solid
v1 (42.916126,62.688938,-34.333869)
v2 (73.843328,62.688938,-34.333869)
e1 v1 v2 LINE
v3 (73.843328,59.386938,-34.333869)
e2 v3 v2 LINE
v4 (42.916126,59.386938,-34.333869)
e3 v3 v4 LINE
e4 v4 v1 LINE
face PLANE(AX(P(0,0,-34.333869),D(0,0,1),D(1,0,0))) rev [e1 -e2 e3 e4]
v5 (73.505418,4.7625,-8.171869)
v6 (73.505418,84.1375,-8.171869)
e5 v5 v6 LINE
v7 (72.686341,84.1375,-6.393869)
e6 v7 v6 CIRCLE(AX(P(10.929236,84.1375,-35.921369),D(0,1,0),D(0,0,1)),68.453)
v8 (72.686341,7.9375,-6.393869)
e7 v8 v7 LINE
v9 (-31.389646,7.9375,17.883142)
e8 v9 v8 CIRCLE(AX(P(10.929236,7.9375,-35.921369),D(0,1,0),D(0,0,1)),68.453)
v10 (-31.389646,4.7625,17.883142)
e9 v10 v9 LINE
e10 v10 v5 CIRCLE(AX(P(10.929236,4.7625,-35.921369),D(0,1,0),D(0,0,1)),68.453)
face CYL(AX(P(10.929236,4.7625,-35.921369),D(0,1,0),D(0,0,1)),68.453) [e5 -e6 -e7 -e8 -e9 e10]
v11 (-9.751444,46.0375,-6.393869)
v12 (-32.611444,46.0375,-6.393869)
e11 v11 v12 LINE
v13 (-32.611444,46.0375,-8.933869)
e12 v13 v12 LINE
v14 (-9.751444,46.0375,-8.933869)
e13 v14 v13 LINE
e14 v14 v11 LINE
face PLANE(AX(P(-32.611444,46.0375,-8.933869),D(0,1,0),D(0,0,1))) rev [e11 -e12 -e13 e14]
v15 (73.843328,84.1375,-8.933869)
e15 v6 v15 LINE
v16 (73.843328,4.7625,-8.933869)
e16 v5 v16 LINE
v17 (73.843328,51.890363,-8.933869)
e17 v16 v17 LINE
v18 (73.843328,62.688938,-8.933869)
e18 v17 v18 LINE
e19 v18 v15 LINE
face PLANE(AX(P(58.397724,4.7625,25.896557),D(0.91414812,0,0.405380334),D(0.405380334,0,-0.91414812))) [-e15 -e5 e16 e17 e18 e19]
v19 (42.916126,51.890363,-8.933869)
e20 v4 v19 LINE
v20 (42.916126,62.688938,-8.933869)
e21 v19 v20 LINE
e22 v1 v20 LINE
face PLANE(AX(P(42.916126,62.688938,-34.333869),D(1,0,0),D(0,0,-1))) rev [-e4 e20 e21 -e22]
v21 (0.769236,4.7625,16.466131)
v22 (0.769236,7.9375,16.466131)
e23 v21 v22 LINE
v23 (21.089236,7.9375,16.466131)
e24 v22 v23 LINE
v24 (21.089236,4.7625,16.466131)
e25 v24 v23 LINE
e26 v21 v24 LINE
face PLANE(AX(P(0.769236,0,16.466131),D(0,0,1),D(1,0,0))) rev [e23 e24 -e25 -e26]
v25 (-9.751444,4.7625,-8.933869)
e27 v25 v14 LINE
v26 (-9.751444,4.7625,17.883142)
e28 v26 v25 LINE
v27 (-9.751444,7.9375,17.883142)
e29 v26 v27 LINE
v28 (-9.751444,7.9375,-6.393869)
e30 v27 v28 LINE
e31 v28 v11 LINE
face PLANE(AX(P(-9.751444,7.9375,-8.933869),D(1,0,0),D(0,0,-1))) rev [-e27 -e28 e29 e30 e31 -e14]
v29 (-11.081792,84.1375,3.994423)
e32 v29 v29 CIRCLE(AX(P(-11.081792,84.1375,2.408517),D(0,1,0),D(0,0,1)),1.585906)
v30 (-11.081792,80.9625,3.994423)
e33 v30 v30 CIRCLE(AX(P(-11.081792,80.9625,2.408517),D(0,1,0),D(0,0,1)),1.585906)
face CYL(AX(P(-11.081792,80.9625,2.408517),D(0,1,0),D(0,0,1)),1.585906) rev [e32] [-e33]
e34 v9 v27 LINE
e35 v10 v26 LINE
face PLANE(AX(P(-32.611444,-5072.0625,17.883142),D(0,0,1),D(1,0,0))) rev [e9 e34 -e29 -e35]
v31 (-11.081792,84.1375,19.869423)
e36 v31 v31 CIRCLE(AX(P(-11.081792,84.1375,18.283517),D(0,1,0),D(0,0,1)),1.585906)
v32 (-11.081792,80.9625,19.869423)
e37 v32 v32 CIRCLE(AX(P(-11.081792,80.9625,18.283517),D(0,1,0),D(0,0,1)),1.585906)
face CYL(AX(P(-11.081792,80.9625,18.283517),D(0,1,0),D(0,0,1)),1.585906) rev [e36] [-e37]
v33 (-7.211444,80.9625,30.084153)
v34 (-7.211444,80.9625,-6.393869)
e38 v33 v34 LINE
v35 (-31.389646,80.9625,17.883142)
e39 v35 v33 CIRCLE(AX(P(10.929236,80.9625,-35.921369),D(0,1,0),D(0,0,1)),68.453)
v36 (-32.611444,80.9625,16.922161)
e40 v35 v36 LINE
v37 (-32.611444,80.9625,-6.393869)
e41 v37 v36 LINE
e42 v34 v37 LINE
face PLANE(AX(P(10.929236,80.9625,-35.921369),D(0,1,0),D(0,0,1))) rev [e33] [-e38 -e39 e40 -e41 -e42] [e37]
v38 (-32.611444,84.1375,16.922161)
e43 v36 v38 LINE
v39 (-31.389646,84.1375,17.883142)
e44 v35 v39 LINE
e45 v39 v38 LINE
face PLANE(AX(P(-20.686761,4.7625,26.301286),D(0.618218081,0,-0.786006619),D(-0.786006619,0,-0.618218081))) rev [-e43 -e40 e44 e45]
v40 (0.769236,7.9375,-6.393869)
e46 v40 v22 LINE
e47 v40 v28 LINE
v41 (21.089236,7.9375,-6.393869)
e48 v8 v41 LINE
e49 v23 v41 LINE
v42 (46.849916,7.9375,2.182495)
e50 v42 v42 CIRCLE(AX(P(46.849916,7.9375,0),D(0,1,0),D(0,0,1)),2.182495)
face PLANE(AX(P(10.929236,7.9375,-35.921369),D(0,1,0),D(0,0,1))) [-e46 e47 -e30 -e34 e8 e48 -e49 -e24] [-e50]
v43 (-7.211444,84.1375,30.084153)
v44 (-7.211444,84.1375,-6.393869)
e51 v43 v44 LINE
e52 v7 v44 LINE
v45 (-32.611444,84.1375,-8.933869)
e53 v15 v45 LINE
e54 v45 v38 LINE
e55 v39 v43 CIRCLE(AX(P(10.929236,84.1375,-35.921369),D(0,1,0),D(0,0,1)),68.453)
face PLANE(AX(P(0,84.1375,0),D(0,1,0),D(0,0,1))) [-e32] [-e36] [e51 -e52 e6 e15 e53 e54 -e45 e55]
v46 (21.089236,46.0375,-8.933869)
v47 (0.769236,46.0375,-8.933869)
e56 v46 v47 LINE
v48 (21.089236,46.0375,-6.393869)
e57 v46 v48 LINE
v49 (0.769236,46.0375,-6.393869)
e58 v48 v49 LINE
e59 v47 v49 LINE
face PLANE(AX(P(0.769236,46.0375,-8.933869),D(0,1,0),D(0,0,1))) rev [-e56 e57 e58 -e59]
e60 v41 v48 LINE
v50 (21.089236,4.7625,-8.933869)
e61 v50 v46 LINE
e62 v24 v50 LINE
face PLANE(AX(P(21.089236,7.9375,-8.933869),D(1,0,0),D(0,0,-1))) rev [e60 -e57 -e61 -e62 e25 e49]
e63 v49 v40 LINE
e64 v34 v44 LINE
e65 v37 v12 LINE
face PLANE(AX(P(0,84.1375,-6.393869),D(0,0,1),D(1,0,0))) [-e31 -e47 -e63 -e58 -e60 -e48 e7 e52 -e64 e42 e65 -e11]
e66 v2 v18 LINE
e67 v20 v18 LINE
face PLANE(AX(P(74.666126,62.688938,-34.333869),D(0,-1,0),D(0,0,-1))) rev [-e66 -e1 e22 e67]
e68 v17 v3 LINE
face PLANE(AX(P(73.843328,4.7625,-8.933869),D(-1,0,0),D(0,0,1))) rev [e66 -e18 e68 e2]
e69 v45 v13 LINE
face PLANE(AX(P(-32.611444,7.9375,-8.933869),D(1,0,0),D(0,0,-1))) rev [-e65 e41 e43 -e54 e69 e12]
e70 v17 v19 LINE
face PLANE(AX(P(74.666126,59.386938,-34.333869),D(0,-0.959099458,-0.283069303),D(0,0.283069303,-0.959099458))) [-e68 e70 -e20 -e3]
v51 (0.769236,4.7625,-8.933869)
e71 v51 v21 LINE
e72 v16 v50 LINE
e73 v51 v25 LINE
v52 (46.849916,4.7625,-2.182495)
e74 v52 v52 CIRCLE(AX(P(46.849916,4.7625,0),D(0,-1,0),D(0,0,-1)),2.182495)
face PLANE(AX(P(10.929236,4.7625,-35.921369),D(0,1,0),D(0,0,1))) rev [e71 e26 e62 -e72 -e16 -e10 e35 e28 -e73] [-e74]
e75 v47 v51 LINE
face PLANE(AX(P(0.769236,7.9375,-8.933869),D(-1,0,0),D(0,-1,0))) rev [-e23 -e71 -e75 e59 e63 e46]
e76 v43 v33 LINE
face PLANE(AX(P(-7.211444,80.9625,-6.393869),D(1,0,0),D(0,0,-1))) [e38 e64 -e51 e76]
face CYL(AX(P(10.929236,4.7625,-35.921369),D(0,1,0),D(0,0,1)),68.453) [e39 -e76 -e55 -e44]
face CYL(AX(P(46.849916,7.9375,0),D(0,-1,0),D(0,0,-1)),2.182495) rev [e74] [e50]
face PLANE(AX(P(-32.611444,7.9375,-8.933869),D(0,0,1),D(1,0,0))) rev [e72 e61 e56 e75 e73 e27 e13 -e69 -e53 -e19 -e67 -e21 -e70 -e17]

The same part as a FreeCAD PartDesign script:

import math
import FreeCAD as App
import Part
import Sketcher
Q = App.Units.Quantity


def add_polygon(sketch, points):
    """Adds a closed chain of lines whose ends are joined by coincident constraints."""
    first, n = sketch.GeometryCount, len(points)
    for a, b in zip(points, points[1:] + points[:1]):
        sketch.addGeometry(Part.LineSegment(App.Vector(*a, 0), App.Vector(*b, 0)), False)
    for i in range(n):
        sketch.addConstraint(Sketcher.Constraint("Coincident", first + i, 2, first + (i + 1) % n, 1))

doc = App.newDocument("Part")
body = doc.addObject("PartDesign::Body", "Body")

# Sketch on XZ plane
sketch1 = body.newObject("Sketcher::SketchObject", "Sketch")
sketch1.AttachmentSupport = (doc.getObject("XZ_Plane"), [""])
sketch1.MapMode = "FlatFace"
sketch1.addGeometry([
    Part.Circle(App.Vector(-25, 0, 0), App.Vector(0, 0, 1), 5.4),
    Part.Circle(App.Vector(-25, 0, 0), App.Vector(0, 0, 1), 2.2),
], False)
sketch1.addConstraint([
    Sketcher.Constraint("Coincident", 1, 3, 0, 3),
    Sketcher.Constraint("PointOnObject", 0, 3, -1),
    Sketcher.Constraint("Diameter", 0, 10.71499),
    Sketcher.Constraint("Diameter", 1, 4.36499),
    Sketcher.Constraint("DistanceX", 0, 3, -1, 1, 24.991444),
])
pad1 = body.newObject("PartDesign::Pad", "Pad")
pad1.Profile = sketch1
pad1.Length = Q("0.1875 in")
pad1.Reversed = True
body2 = doc.addObject("PartDesign::Body", "Body001")

# Sketch on XZ plane
sketch2 = body2.newObject("Sketcher::SketchObject", "Sketch001")
sketch2.AttachmentSupport = (doc.getObject("XZ_Plane001"), [""])
sketch2.MapMode = "FlatFace"
sketch2.addGeometry([
    Part.Circle(App.Vector(46.8, 0, 0), App.Vector(0, 0, 1), 5.4),
    Part.Circle(App.Vector(46.8, 0, 0), App.Vector(0, 0, 1), 2.2),
], False)
sketch2.addConstraint([
    Sketcher.Constraint("Coincident", 1, 3, 0, 3),
    Sketcher.Constraint("PointOnObject", 0, 3, -1),
    Sketcher.Constraint("Diameter", 0, 10.71499),
    Sketcher.Constraint("Diameter", 1, 4.36499),
    Sketcher.Constraint("DistanceX", -1, 1, 0, 3, 46.849916),
])
pad2 = body2.newObject("PartDesign::Pad", "Pad001")
pad2.Profile = sketch2
pad2.Length = Q("0.1875 in")
pad2.Reversed = True
body.AllowCompound = True
doc.recompute()

boolean = body.newObject("PartDesign::Boolean", "Boolean")
boolean.Type = "Fuse"
boolean.addObjects([body2])

# Sketch on XZ plane
sketch3 = body.newObject("Sketcher::SketchObject", "Sketch002")
sketch3.AttachmentSupport = (doc.getObject("XZ_Plane"), [""])
sketch3.MapMode = "FlatFace"
sketch3.AttachmentOffset = App.Placement(App.Vector(0, 0, -0.1875 * 25.4), App.Rotation())
sketch3.addGeometry([
    Part.LineSegment(App.Vector(-32.6, -8.9, 0), App.Vector(-32.6, 17.9, 0)),  # 0
    Part.ArcOfCircle(Part.Circle(App.Vector(10.9, -35.9, 0), App.Vector(0, 0, 1), 69.2), math.radians(23), math.radians(129)),  # 1
    Part.LineSegment(App.Vector(74.7, -8.9, 0), App.Vector(-32.6, -8.9, 0)),  # 2
    Part.Circle(App.Vector(-25, 0, 0), App.Vector(0, 0, 1), 2.2),  # 3
    Part.Circle(App.Vector(46.8, 0, 0), App.Vector(0, 0, 1), 2.2),  # 4
], False)
sketch3.addConstraint([
    Sketcher.Constraint("Coincident", 0, 2, 1, 2),
    Sketcher.Constraint("Coincident", 1, 1, 2, 1),
    Sketcher.Constraint("Coincident", 2, 2, 0, 1),
    Sketcher.Constraint("Vertical", 0),
    Sketcher.Constraint("Horizontal", 2),
    Sketcher.Constraint("Equal", 3, 4),
    Sketcher.Constraint("PointOnObject", 3, 3, -1),
    Sketcher.Constraint("PointOnObject", 4, 3, -1),
    Sketcher.Constraint("Radius", 1, Q("2.725 in")),
    Sketcher.Constraint("DistanceX", 0, 2, 3, 3, Q("0.3 in")),
    Sketcher.Constraint("Diameter", 3, 4.36499),
    Sketcher.Constraint("DistanceY", 1, 3, 1, 1, Q("1.0625 in")),
    Sketcher.Constraint("DistanceX", 3, 3, 1, 3, Q("1.4142 in")),
    Sketcher.Constraint("DistanceX", 1, 3, 4, 3, Q("1.4142 in")),
    Sketcher.Constraint("DistanceY", 1, 3, -1, 1, 35.921369),
    Sketcher.Constraint("DistanceX", -1, 1, 1, 3, 10.929236),
])
pad3 = body.newObject("PartDesign::Pad", "Pad002")
pad3.Profile = sketch3
pad3.Length = Q("0.125 in")
pad3.Reversed = True

# Sketch on XZ plane
sketch4 = body.newObject("Sketcher::SketchObject", "Sketch003")
sketch4.AttachmentSupport = (doc.getObject("XZ_Plane"), [""])
sketch4.MapMode = "FlatFace"
sketch4.AttachmentOffset = App.Placement(App.Vector(0, 0, -0.3125 * 25.4), App.Rotation())
sketch4.addGeometry([
    Part.LineSegment(App.Vector(74.7, -8.9, 0), App.Vector(-32.6, -8.9, 0)),
    Part.LineSegment(App.Vector(-32.6, -8.9, 0), App.Vector(-32.6, -6.4, 0)),
    Part.LineSegment(App.Vector(-32.6, -6.4, 0), App.Vector(73.5, -6.4, 0)),
    Part.ArcOfCircle(Part.Circle(App.Vector(10.9, -35.9, 0), App.Vector(0, 0, 1), 69.2), math.radians(22.95), math.radians(25.25)),
], False)
sketch4.addConstraint([
    Sketcher.Constraint("Coincident", 0, 2, 1, 1),
    Sketcher.Constraint("Coincident", 1, 2, 2, 1),
    Sketcher.Constraint("Coincident", 2, 2, 3, 2),
    Sketcher.Constraint("Coincident", 3, 1, 0, 1),
    Sketcher.Constraint("Horizontal", 0),
    Sketcher.Constraint("Vertical", 1),
    Sketcher.Constraint("Horizontal", 2),
    Sketcher.Constraint("DistanceY", 1, 1, 1, 2, Q("0.1 in")),
    Sketcher.Constraint("Radius", 3, Q("2.725 in")),
    Sketcher.Constraint("DistanceY", 3, 3, 0, 2, Q("1.0625 in")),
    Sketcher.Constraint("DistanceX", 0, 2, 3, 3, Q("1.7142 in")),
    Sketcher.Constraint("DistanceX", -1, 1, 2, 2, 73.529899),
    Sketcher.Constraint("DistanceY", 3, 3, -1, 1, 35.921369),
])
pad4 = body.newObject("PartDesign::Pad", "Pad003")
pad4.Profile = sketch4
pad4.Length = Q("3 in")
pad4.Reversed = True

# Sketch on XY plane
sketch5 = body.newObject("Sketcher::SketchObject", "Sketch004")
sketch5.AttachmentSupport = (doc.getObject("XY_Plane"), [""])
sketch5.MapMode = "FlatFace"
sketch5.AttachmentOffset = App.Placement(App.Vector(0, 0, -8.933869), App.Rotation())
add_polygon(sketch5, [(74.7, 62.7), (74.7, 59.4), (42.9, 59.4), (42.9, 62.7)])  # lines 0-3
sketch5.addConstraint([
    Sketcher.Constraint("Vertical", 0),
    Sketcher.Constraint("Horizontal", 1),
    Sketcher.Constraint("Vertical", 2),
    Sketcher.Constraint("Horizontal", 3),
    Sketcher.Constraint("DistanceX", 1, 2, 1, 1, Q("1.25 in")),
    Sketcher.Constraint("DistanceY", 0, 2, 0, 1, Q("0.13 in")),
    Sketcher.Constraint("DistanceX", -1, 1, 0, 2, 74.666126),
    Sketcher.Constraint("DistanceY", -1, 1, 0, 2, 59.386938),
])
pad5 = body.newObject("PartDesign::Pad", "Pad004")
pad5.Profile = sketch5
pad5.Length = Q("1 in")
pad5.Reversed = True

# Sketch on YZ plane
sketch6 = body.newObject("Sketcher::SketchObject", "Sketch005")
sketch6.AttachmentSupport = (doc.getObject("YZ_Plane"), [""])
sketch6.MapMode = "FlatFace"
sketch6.AttachmentOffset = App.Placement(App.Vector(0, 0, 42.916126), App.Rotation())
add_polygon(sketch6, [(59, -34), (52, -9), (59, -9)])  # lines 0-2
sketch6.addConstraint([
    Sketcher.Constraint("Horizontal", 1),
    Sketcher.Constraint("Vertical", 2),
    Sketcher.Constraint("DistanceY", 2, 2, 2, 1, Q("1 in")),
    Sketcher.Constraint("DistanceX", 1, 1, 1, 2, 7.496574),
    Sketcher.Constraint("DistanceY", 0, 2, -1, 1, 8.933869),
    Sketcher.Constraint("DistanceX", -1, 1, 0, 2, 51.890363),
])
pad6 = body.newObject("PartDesign::Pad", "Pad005")
pad6.Profile = sketch6
pad6.Length = Q("1.25 in")

# Sketch on XZ plane
sketch7 = body.newObject("Sketcher::SketchObject", "Sketch006")
sketch7.AttachmentSupport = (doc.getObject("XZ_Plane"), [""])
sketch7.MapMode = "FlatFace"
sketch7.AttachmentOffset = App.Placement(App.Vector(0, 0, -3.3125 * 25.4), App.Rotation())
sketch7.addGeometry([
    Part.LineSegment(App.Vector(-33, -6, 0), App.Vector(-33, 18, 0)),
    Part.ArcOfCircle(Part.Circle(App.Vector(11, -36, 0), App.Vector(0, 0, 1), 69), math.radians(105), math.radians(129)),
    Part.LineSegment(App.Vector(-7, 31, 0), App.Vector(-7, -6, 0)),
    Part.LineSegment(App.Vector(-7, -6, 0), App.Vector(-33, -6, 0)),
], False)
sketch7.addConstraint([
    Sketcher.Constraint("Coincident", 0, 2, 1, 2),
    Sketcher.Constraint("Coincident", 1, 1, 2, 1),
    Sketcher.Constraint("Coincident", 2, 2, 3, 1),
    Sketcher.Constraint("Coincident", 3, 2, 0, 1),
    Sketcher.Constraint("Vertical", 0),
    Sketcher.Constraint("Vertical", 2),
    Sketcher.Constraint("Horizontal", 3),
    Sketcher.Constraint("DistanceX", 3, 2, 3, 1, Q("1 in")),
    Sketcher.Constraint("Radius", 1, Q("2.725 in")),
    Sketcher.Constraint("DistanceX", 0, 2, 1, 3, Q("1.7142 in")),
    Sketcher.Constraint("DistanceY", 1, 3, 2, 2, Q("1.1625 in")),
    Sketcher.Constraint("DistanceY", 1, 3, -1, 1, 35.921369),
    Sketcher.Constraint("DistanceX", -1, 1, 1, 3, 10.929236),
])
pad7 = body.newObject("PartDesign::Pad", "Pad006")
pad7.Profile = sketch7
pad7.Length = Q("0.125 in")

# Sketch on XZ plane
sketch8 = body.newObject("Sketcher::SketchObject", "Sketch007")
sketch8.AttachmentSupport = (doc.getObject("XZ_Plane"), [""])
sketch8.MapMode = "FlatFace"
sketch8.AttachmentOffset = App.Placement(App.Vector(0, 0, -3.3125 * 25.4), App.Rotation())
sketch8.addGeometry([
    Part.Circle(App.Vector(-11.1, 2.4, 0), App.Vector(0, 0, 1), 1.6),
    Part.Circle(App.Vector(-11.1, 18.3, 0), App.Vector(0, 0, 1), 1.6),
], False)
sketch8.addConstraint([
    Sketcher.Constraint("Equal", 0, 1),
    Sketcher.Constraint("Vertical", 0, 3, 1, 3),
    Sketcher.Constraint("Diameter", 0, 3.171812),
    Sketcher.Constraint("DistanceY", 0, 3, 1, 3, Q("0.625 in")),
    Sketcher.Constraint("DistanceX", 0, 3, -1, 1, 11.081792),
    Sketcher.Constraint("DistanceY", -1, 1, 0, 3, 2.408517),
])
pocket1 = body.newObject("PartDesign::Pocket", "Pocket")
pocket1.Profile = sketch8
pocket1.Length = Q("0.125 in")
pocket1.Reversed = True

# Sketch on XY plane
sketch9 = body.newObject("Sketcher::SketchObject", "Sketch008")
sketch9.AttachmentSupport = (doc.getObject("XY_Plane"), [""])
sketch9.MapMode = "FlatFace"
sketch9.AttachmentOffset = App.Placement(App.Vector(0, 0, -6.393869), App.Rotation())
add_polygon(sketch9, [(-33, 46), (-33, 8), (-10, 8), (-10, 46)])  # lines 0-3
sketch9.addConstraint([
    Sketcher.Constraint("Vertical", 0),
    Sketcher.Constraint("Horizontal", 1),
    Sketcher.Constraint("Vertical", 2),
    Sketcher.Constraint("Horizontal", 3),
    Sketcher.Constraint("DistanceX", 1, 1, 1, 2, Q("0.9 in")),
    Sketcher.Constraint("DistanceY", 0, 2, 0, 1, Q("1.5 in")),
    Sketcher.Constraint("DistanceY", -1, 1, 0, 2, Q("0.3125 in")),
    Sketcher.Constraint("DistanceX", 0, 2, -1, 1, 32.611444),
])
pocket2 = body.newObject("PartDesign::Pocket", "Pocket001")
pocket2.Profile = sketch9
pocket2.Length = Q("0.1 in")

# Sketch on XZ plane
sketch10 = body.newObject("Sketcher::SketchObject", "Sketch009")
sketch10.AttachmentSupport = (doc.getObject("XZ_Plane"), [""])
sketch10.MapMode = "FlatFace"
sketch10.AttachmentOffset = App.Placement(App.Vector(0, 0, -0.3125 * 25.4), App.Rotation())
add_polygon(sketch10, [(-33, -9), (-33, 18), (-10, 18), (-10, -9)])  # lines 0-3
sketch10.addConstraint([
    Sketcher.Constraint("Vertical", 0),
    Sketcher.Constraint("Horizontal", 1),
    Sketcher.Constraint("Vertical", 2),
    Sketcher.Constraint("Horizontal", 3),
    Sketcher.Constraint("DistanceX", 1, 1, 1, 2, Q("0.9 in")),
    Sketcher.Constraint("DistanceY", 0, 1, 0, 2, 26.817011),
    Sketcher.Constraint("DistanceY", 2, 2, -1, 1, 8.933869),
    Sketcher.Constraint("DistanceX", 0, 2, -1, 1, 32.611444),
])
pocket3 = body.newObject("PartDesign::Pocket", "Pocket002")
pocket3.Profile = sketch10
pocket3.Length = Q("200 in")
pocket3.Reversed = True

# Sketch on XY plane
sketch11 = body.newObject("Sketcher::SketchObject", "Sketch010")
sketch11.AttachmentSupport = (doc.getObject("XY_Plane"), [""])
sketch11.MapMode = "FlatFace"
sketch11.AttachmentOffset = App.Placement(App.Vector(0, 0, -6.393869), App.Rotation())
add_polygon(sketch11, [(1, 46), (1, 8), (21, 8), (21, 46)])  # lines 0-3
sketch11.addConstraint([
    Sketcher.Constraint("Vertical", 0),
    Sketcher.Constraint("Horizontal", 1),
    Sketcher.Constraint("Vertical", 2),
    Sketcher.Constraint("Horizontal", 3),
    Sketcher.Constraint("DistanceX", 1, 1, 1, 2, Q("0.8 in")),
    Sketcher.Constraint("DistanceY", 0, 2, 0, 1, Q("1.5 in")),
    Sketcher.Constraint("DistanceY", -1, 1, 0, 2, Q("0.3125 in")),
    Sketcher.Constraint("DistanceX", -1, 1, 0, 2, 0.769236),
])
pocket4 = body.newObject("PartDesign::Pocket", "Pocket003")
pocket4.Profile = sketch11
pocket4.Length = Q("0.1 in")

# Sketch on XZ plane
sketch12 = body.newObject("Sketcher::SketchObject", "Sketch011")
sketch12.AttachmentSupport = (doc.getObject("XZ_Plane"), [""])
sketch12.MapMode = "FlatFace"
sketch12.AttachmentOffset = App.Placement(App.Vector(0, 0, -0.3125 * 25.4), App.Rotation())
add_polygon(sketch12, [(1, -9), (1, 16), (21, 16), (21, -9)])  # lines 0-3
sketch12.addConstraint([
    Sketcher.Constraint("Vertical", 0),
    Sketcher.Constraint("Horizontal", 1),
    Sketcher.Constraint("Vertical", 2),
    Sketcher.Constraint("Horizontal", 3),
    Sketcher.Constraint("DistanceY", 0, 1, 0, 2, Q("1 in")),
    Sketcher.Constraint("DistanceX", 1, 1, 1, 2, Q("0.8 in")),
    Sketcher.Constraint("DistanceY", -1, 1, 0, 2, 16.466131),
    Sketcher.Constraint("DistanceX", -1, 1, 0, 2, 0.769236),
])
pocket5 = body.newObject("PartDesign::Pocket", "Pocket004")
pocket5.Profile = sketch12
pocket5.Type = "ThroughAll"
pocket5.Reversed = True

# Sketch on XZ plane
sketch13 = body.newObject("Sketcher::SketchObject", "Sketch012")
sketch13.AttachmentSupport = (doc.getObject("XZ_Plane"), [""])
sketch13.MapMode = "FlatFace"
sketch13.AttachmentOffset = App.Placement(App.Vector(0, 0, -0.1875 * 25.4), App.Rotation())
sketch13.addGeometry(Part.Circle(App.Vector(36, 7, 0), App.Vector(0, 0, 1), 23), False)
sketch13.addConstraint([
    Sketcher.Constraint("Diameter", 0, 46.869999),
    Sketcher.Constraint("DistanceY", -1, 1, 0, 3, 7.157129),
    Sketcher.Constraint("DistanceX", -1, 1, 0, 3, 35.627804),
])
pocket6 = body.newObject("PartDesign::Pocket", "Pocket005")
pocket6.Profile = sketch13
pocket6.Type = "ThroughAll"
pocket6.Reversed = True

# Sketch on XZ plane
sketch14 = body.newObject("Sketcher::SketchObject", "Sketch013")
sketch14.AttachmentSupport = (doc.getObject("XZ_Plane"), [""])
sketch14.MapMode = "FlatFace"
sketch14.AttachmentOffset = App.Placement(App.Vector(0, 0, -0.3125 * 25.4), App.Rotation())
sketch14.addGeometry([
    Part.ArcOfCircle(Part.Circle(App.Vector(10.9, -35.9, 0), App.Vector(0, 0, 1), 68.5), math.radians(26), math.radians(128)),  # 0
    Part.LineSegment(App.Vector(-31.4, 17.9, 0), App.Vector(-32.6, 17.9, 0)),  # 1
    Part.ArcOfCircle(Part.Circle(App.Vector(10.9, -35.9, 0), App.Vector(0, 0, 1), 69.2), math.radians(25), math.radians(129)),  # 2
    Part.ArcOfCircle(Part.Circle(App.Vector(10.9, -35.9, 0), App.Vector(0, 0, 1), 69.2), math.radians(22.95), math.radians(25.25)),  # 3
    Part.LineSegment(App.Vector(74.7, -8.9, 0), App.Vector(73.8, -8.9, 0)),  # 4
    Part.LineSegment(App.Vector(73.8, -8.9, 0), App.Vector(73.5, -8.2, 0)),  # 5
    Part.ArcOfCircle(Part.Circle(App.Vector(10.9, -35.9, 0), App.Vector(0, 0, 1), 68.5), math.radians(23.91), math.radians(25.55)),  # 6
], False)
sketch14.addConstraint([
    Sketcher.Constraint("Coincident", 0, 2, 1, 1),
    Sketcher.Constraint("Coincident", 1, 2, 2, 2),
    Sketcher.Constraint("Tangent", 2, 1, 3, 2),
    Sketcher.Constraint("Coincident", 3, 1, 4, 1),
    Sketcher.Constraint("Coincident", 4, 2, 5, 1),
    Sketcher.Constraint("Tangent", 5, 2, 6, 1),
    Sketcher.Constraint("Tangent", 6, 2, 0, 1),
    Sketcher.Constraint("Horizontal", 1),
    Sketcher.Constraint("Horizontal", 4),
    Sketcher.Constraint("Coincident", 2, 3, 0, 3),
    Sketcher.Constraint("Equal", 2, 3),
    Sketcher.Constraint("Equal", 0, 6),
    Sketcher.Constraint("Horizontal", 2, 1, 6, 2),
    Sketcher.Constraint("Radius", 0, Q("2.695 in")),
    Sketcher.Constraint("Radius", 2, Q("2.725 in")),
    Sketcher.Constraint("DistanceY", 3, 1, 2, 1, Q("0.1 in")),
    Sketcher.Constraint("DistanceY", 4, 2, 5, 2, Q("0.03 in")),
    Sketcher.Constraint("DistanceY", 2, 3, 3, 1, Q("1.0625 in")),
    Sketcher.Constraint("DistanceX", 1, 2, 6, 3, Q("1.7142 in")),
    Sketcher.Constraint("DistanceX", -1, 1, 2, 1, 73.529899),
    Sketcher.Constraint("DistanceY", 0, 3, -1, 1, 35.921369),
])
pocket7 = body.newObject("PartDesign::Pocket", "Pocket006")
pocket7.Profile = sketch14
pocket7.Type = "ThroughAll"
pocket7.Midplane = True

# Sketch on XZ plane
sketch15 = body.newObject("Sketcher::SketchObject", "Sketch014")
sketch15.AttachmentSupport = (doc.getObject("XZ_Plane"), [""])
sketch15.MapMode = "FlatFace"
sketch15.AttachmentOffset = App.Placement(App.Vector(0, 0, -62.688938), App.Rotation())
add_polygon(sketch15, [(73.8, -34.3), (73.8, -8.9), (74.7, -8.9), (74.7, -34.3)])  # lines 0-3
sketch15.addConstraint([
    Sketcher.Constraint("Vertical", 0),
    Sketcher.Constraint("Horizontal", 1),
    Sketcher.Constraint("Vertical", 2),
    Sketcher.Constraint("Horizontal", 3),
    Sketcher.Constraint("DistanceY", 0, 1, 0, 2, Q("1 in")),
    Sketcher.Constraint("DistanceX", 1, 1, 1, 2, 0.822798),
    Sketcher.Constraint("DistanceY", 0, 2, -1, 1, 8.933869),
    Sketcher.Constraint("DistanceX", -1, 1, 0, 2, 73.843328),
])
pocket8 = body.newObject("PartDesign::Pocket", "Pocket007")
pocket8.Profile = sketch15
pocket8.Type = "ThroughAll"
pocket8.Midplane = True

# Sketch on XZ plane
sketch16 = body.newObject("Sketcher::SketchObject", "Sketch015")
sketch16.AttachmentSupport = (doc.getObject("XZ_Plane"), [""])
sketch16.MapMode = "FlatFace"
sketch16.AttachmentOffset = App.Placement(App.Vector(0, 0, -3.3125 * 25.4), App.Rotation())
add_polygon(sketch16, [(-32.6, 16.9), (-32.6, 17.9), (-31.4, 17.9)])  # lines 0-2
sketch16.addConstraint([
    Sketcher.Constraint("Vertical", 0),
    Sketcher.Constraint("Horizontal", 1),
    Sketcher.Constraint("DistanceY", 0, 1, 0, 2, 0.960981),
    Sketcher.Constraint("DistanceX", 1, 1, 1, 2, 1.221798),
    Sketcher.Constraint("DistanceY", -1, 1, 2, 2, 16.922161),
    Sketcher.Constraint("DistanceX", 0, 2, -1, 1, 32.611444),
])
pocket9 = body.newObject("PartDesign::Pocket", "Pocket008")
pocket9.Profile = sketch16
pocket9.Type = "ThroughAll"
pocket9.Midplane = True

doc.recompute()
